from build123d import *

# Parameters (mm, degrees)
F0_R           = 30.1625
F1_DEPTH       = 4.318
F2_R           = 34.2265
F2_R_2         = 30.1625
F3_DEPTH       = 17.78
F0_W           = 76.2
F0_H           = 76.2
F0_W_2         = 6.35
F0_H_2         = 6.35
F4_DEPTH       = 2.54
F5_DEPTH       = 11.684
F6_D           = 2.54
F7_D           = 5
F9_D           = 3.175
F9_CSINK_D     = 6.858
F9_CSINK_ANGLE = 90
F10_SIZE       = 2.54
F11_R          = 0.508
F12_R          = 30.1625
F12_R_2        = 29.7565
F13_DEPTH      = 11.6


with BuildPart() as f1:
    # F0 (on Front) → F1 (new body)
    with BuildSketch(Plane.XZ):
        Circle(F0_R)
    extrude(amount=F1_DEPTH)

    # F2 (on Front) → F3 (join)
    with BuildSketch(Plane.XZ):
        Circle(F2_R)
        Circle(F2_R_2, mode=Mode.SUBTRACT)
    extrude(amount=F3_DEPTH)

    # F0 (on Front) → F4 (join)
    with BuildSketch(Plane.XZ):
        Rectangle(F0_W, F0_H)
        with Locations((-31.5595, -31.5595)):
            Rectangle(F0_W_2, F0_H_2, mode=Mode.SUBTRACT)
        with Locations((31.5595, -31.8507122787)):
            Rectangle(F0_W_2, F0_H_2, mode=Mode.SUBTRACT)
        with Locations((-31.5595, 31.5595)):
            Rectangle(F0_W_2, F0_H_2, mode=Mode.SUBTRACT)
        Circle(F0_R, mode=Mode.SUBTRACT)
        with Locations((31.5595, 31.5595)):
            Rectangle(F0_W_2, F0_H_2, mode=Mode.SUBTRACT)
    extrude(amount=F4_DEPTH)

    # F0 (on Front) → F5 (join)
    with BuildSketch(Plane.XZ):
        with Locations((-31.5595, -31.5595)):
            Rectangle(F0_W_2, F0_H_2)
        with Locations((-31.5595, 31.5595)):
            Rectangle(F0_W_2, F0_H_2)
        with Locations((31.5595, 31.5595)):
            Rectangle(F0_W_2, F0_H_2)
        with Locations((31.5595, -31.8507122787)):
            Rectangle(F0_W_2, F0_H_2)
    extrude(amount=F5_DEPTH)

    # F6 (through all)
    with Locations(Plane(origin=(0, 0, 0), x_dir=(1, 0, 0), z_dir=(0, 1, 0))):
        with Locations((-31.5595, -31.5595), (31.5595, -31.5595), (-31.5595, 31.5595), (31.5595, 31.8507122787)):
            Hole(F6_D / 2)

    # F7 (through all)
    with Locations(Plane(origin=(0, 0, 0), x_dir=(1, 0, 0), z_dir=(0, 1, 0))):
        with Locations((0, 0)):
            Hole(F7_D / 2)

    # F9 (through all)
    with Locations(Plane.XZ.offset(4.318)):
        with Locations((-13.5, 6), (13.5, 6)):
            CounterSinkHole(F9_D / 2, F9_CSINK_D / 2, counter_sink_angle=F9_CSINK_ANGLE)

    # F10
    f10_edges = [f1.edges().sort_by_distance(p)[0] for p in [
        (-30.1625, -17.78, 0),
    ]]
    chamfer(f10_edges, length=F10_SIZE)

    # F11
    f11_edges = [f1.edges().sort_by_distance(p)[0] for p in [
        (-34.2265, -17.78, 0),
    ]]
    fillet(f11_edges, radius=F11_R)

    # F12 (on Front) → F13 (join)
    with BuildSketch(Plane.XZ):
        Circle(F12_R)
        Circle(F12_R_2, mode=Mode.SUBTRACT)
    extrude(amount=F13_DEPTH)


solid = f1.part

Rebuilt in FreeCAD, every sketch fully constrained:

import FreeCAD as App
import Part
import Sketcher
from FreeCAD import Vector
Q = App.Units.Quantity


def edges_at(feature, points):
    """Names of the edges that pass closest to the given points."""
    edges = feature.Shape.Edges
    near = lambda p: min(range(len(edges)), key=lambda i: edges[i].distToShape(Part.Vertex(*p))[0])
    return sorted({f"Edge{near(p) + 1}" for p in points})


def add_polygon(sketch, points):
    """Adds a closed chain of lines whose ends are joined by coincident constraints."""
    first, n = sketch.GeometryCount, len(points)
    for a, b in zip(points, points[1:] + points[:1]):
        sketch.addGeometry(Part.LineSegment(App.Vector(*a, 0), App.Vector(*b, 0)), False)
    for i in range(n):
        sketch.addConstraint(Sketcher.Constraint("Coincident", first + i, 2, first + (i + 1) % n, 1))

doc = App.newDocument("Part")
params = doc.addObject("Spreadsheet::Sheet", "Params")
for row, (alias, value) in enumerate([
    ("sketch1_diameter", "2.375 in"),
    ("pad1_length", "0.17 in"),
    ("sketch2_diameter", "2.695 in"),
    ("sketch2_diameter2", "2.375 in"),
    ("pad2_length", "0.7 in"),
    ("sketch3_width", "3 in"),
    ("sketch3_diameter", "2.375 in"),
    ("sketch3_width2", "0.25 in"),
    ("pad3_length", "0.1 in"),
    ("sketch4_width", "0.25 in"),
    ("pad4_length", "0.46 in"),
    ("sketch5_diameter", "0.1 in"),
    ("hole_diameter", "0.1 in"),
    ("hole2_diameter", "5 mm"),
    ("sketch7_diameter", "0.125 in"),
    ("hole3_diameter", "0.125 in"),
    ("hole3_csink_diameter", "0.27 in"),
    ("chamfer_size", "0.1 in"),
    ("fillet_radius", "0.02 in"),
    ("sketch8_diameter", "2.375 in"),
    ("pad5_length", "11.6 mm"),
], start=1):
    params.set(f"A{row}", alias)
    params.set(f"B{row}", "=" + value)
    params.setAlias(f"B{row}", alias)

body = doc.addObject("PartDesign::Body", "Body")

# Sketch on XZ plane
sketch1 = body.newObject("Sketcher::SketchObject", "Sketch")
sketch1.AttachmentSupport = (doc.getObject("XZ_Plane"), [""])
sketch1.MapMode = "FlatFace"
sketch1.addGeometry(Part.Circle(Vector(0, 0, 0), Vector(0, 0, 1), 30), False)
sketch1.addConstraint([
    Sketcher.Constraint("Coincident", 0, 3, -1, 1),
    Sketcher.Constraint("Diameter", 0, Q("2.375 in")),
])
sketch1.setExpression("Constraints[1]", "Params.sketch1_diameter")
pad1 = body.newObject("PartDesign::Pad", "Pad")
pad1.Profile = sketch1
pad1.setExpression("Length", "Params.pad1_length")

# Sketch on XZ plane
sketch2 = body.newObject("Sketcher::SketchObject", "Sketch001")
sketch2.AttachmentSupport = (doc.getObject("XZ_Plane"), [""])
sketch2.MapMode = "FlatFace"
sketch2.addGeometry([
    Part.Circle(Vector(0, 0, 0), Vector(0, 0, 1), 34),
    Part.Circle(Vector(0, 0, 0), Vector(0, 0, 1), 30),
], False)
sketch2.addConstraint([
    Sketcher.Constraint("Coincident", 0, 3, -1, 1),
    Sketcher.Constraint("Coincident", 1, 3, -1, 1),
    Sketcher.Constraint("Diameter", 0, Q("2.695 in")),
    Sketcher.Constraint("Diameter", 1, Q("2.375 in")),
])
sketch2.setExpression("Constraints[2]", "Params.sketch2_diameter")
sketch2.setExpression("Constraints[3]", "Params.sketch2_diameter2")
pad2 = body.newObject("PartDesign::Pad", "Pad001")
pad2.Profile = sketch2
pad2.setExpression("Length", "Params.pad2_length")

# Sketch on XZ plane
sketch3 = body.newObject("Sketcher::SketchObject", "Sketch002")
sketch3.AttachmentSupport = (doc.getObject("XZ_Plane"), [""])
sketch3.MapMode = "FlatFace"
add_polygon(sketch3, [(-38, 38), (-38, -38), (38, -38), (38, 38)])  # lines 0-3
add_polygon(sketch3, [(-28, -35), (-35, -35), (-35, -28), (-28, -28)])  # lines 4-7
add_polygon(sketch3, [(35, -35), (28, -35), (28, -29), (35, -29)])  # lines 8-11
add_polygon(sketch3, [(-28, 28), (-35, 28), (-35, 35), (-28, 35)])  # lines 12-15
sketch3.addGeometry(Part.Circle(Vector(0, 0, 0), Vector(0, 0, 1), 30), False)  # 16
add_polygon(sketch3, [(35, 28), (28, 28), (28, 35), (35, 35)])  # lines 17-20
sketch3.addConstraint([
    Sketcher.Constraint("Vertical", 0),
    Sketcher.Constraint("Horizontal", 1),
    Sketcher.Constraint("Vertical", 2),
    Sketcher.Constraint("Horizontal", 3),
    Sketcher.Constraint("Horizontal", 4),
    Sketcher.Constraint("Vertical", 5),
    Sketcher.Constraint("Horizontal", 6),
    Sketcher.Constraint("Vertical", 7),
    Sketcher.Constraint("Horizontal", 8),
    Sketcher.Constraint("Vertical", 9),
    Sketcher.Constraint("Horizontal", 10),
    Sketcher.Constraint("Vertical", 11),
    Sketcher.Constraint("Horizontal", 12),
    Sketcher.Constraint("Vertical", 13),
    Sketcher.Constraint("Horizontal", 14),
    Sketcher.Constraint("Vertical", 15),
    Sketcher.Constraint("Horizontal", 17),
    Sketcher.Constraint("Vertical", 18),
    Sketcher.Constraint("Horizontal", 19),
    Sketcher.Constraint("Vertical", 20),
    Sketcher.Constraint("Coincident", 16, 3, -1, 1),
    Sketcher.Constraint("Symmetric", 0, 2, 2, 2, -1, 1),
    Sketcher.Constraint("Symmetric", 6, 2, 17, 2, -1, 1),
    Sketcher.Constraint("Symmetric", 4, 2, 19, 2, -1, 1),
    Sketcher.Constraint("Symmetric", 15, 2, 17, 2, -2),
    Sketcher.Constraint("Symmetric", 13, 2, 19, 2, -2),
    Sketcher.Constraint("Vertical", 9, 2, 17, 2),
    Sketcher.Constraint("Vertical", 11, 2, 19, 2),
    Sketcher.Constraint("Equal", 3, 0),
    Sketcher.Constraint("Equal", 19, 5),
    Sketcher.Constraint("Equal", 7, 9),
    Sketcher.Constraint("DistanceX", 1, 1, 1, 2, Q("3 in")),
    Sketcher.Constraint("Diameter", 16, Q("2.375 in")),
    Sketcher.Constraint("DistanceX", 4, 2, 4, 1, Q("0.25 in")),
    Sketcher.Constraint("DistanceX", 7, 2, 8, 2, Q("2.235 in")),
    Sketcher.Constraint("DistanceY", 5, 2, 12, 2, Q("2.235 in")),
    Sketcher.Constraint("DistanceY", 8, 2, -1, 1, Q("35.025712 mm")),
])
sketch3.setExpression("Constraints[51]", "Params.sketch3_width")
sketch3.setExpression("Constraints[52]", "Params.sketch3_diameter")
sketch3.setExpression("Constraints[53]", "Params.sketch3_width2")
pad3 = body.newObject("PartDesign::Pad", "Pad002")
pad3.Profile = sketch3
pad3.setExpression("Length", "Params.pad3_length")

# Sketch on XZ plane
sketch4 = body.newObject("Sketcher::SketchObject", "Sketch003")
sketch4.AttachmentSupport = (doc.getObject("XZ_Plane"), [""])
sketch4.MapMode = "FlatFace"
add_polygon(sketch4, [(-35, -28), (-35, -35), (-28, -35), (-28, -28)])  # lines 0-3
add_polygon(sketch4, [(-35, 35), (-35, 28), (-28, 28), (-28, 35)])  # lines 4-7
add_polygon(sketch4, [(28, 35), (28, 28), (35, 28), (35, 35)])  # lines 8-11
add_polygon(sketch4, [(28, -29), (28, -35), (35, -35), (35, -29)])  # lines 12-15
sketch4.addConstraint([
    Sketcher.Constraint("Vertical", 0),
    Sketcher.Constraint("Horizontal", 1),
    Sketcher.Constraint("Vertical", 2),
    Sketcher.Constraint("Horizontal", 3),
    Sketcher.Constraint("Vertical", 4),
    Sketcher.Constraint("Horizontal", 5),
    Sketcher.Constraint("Vertical", 6),
    Sketcher.Constraint("Horizontal", 7),
    Sketcher.Constraint("Vertical", 8),
    Sketcher.Constraint("Horizontal", 9),
    Sketcher.Constraint("Vertical", 10),
    Sketcher.Constraint("Horizontal", 11),
    Sketcher.Constraint("Vertical", 12),
    Sketcher.Constraint("Horizontal", 13),
    Sketcher.Constraint("Vertical", 14),
    Sketcher.Constraint("Horizontal", 15),
    Sketcher.Constraint("Symmetric", 2, 2, 8, 2, -1, 1),
    Sketcher.Constraint("Symmetric", 0, 2, 10, 2, -1, 1),
    Sketcher.Constraint("Symmetric", 5, 2, 8, 2, -2),
    Sketcher.Constraint("Symmetric", 7, 2, 10, 2, -2),
    Sketcher.Constraint("Vertical", 11, 2, 12, 2),
    Sketcher.Constraint("Vertical", 10, 2, 13, 2),
    Sketcher.Constraint("Equal", 15, 0),
    Sketcher.Constraint("Equal", 10, 12),
    Sketcher.Constraint("DistanceX", 1, 1, 1, 2, Q("0.25 in")),
    Sketcher.Constraint("DistanceY", 3, 2, 4, 2, Q("2.235 in")),
    Sketcher.Constraint("DistanceX", 5, 2, 8, 2, Q("2.235 in")),
    Sketcher.Constraint("DistanceY", 12, 2, -1, 1, Q("35.025712 mm")),
])
sketch4.setExpression("Constraints[40]", "Params.sketch4_width")
pad4 = body.newObject("PartDesign::Pad", "Pad003")
pad4.Profile = sketch4
pad4.setExpression("Length", "Params.pad4_length")

# Sketch on XZ plane
sketch5 = body.newObject("Sketcher::SketchObject", "Sketch004")
sketch5.AttachmentSupport = (doc.getObject("XZ_Plane"), [""])
sketch5.MapMode = "FlatFace"
sketch5.addGeometry([
    Part.Circle(Vector(-31.6, 31.6, 0), Vector(0, 0, 1), 1.3),
    Part.Circle(Vector(31.6, 31.6, 0), Vector(0, 0, 1), 1.3),
    Part.Circle(Vector(-31.6, -31.6, 0), Vector(0, 0, 1), 1.3),
    Part.Circle(Vector(31.6, -31.9, 0), Vector(0, 0, 1), 1.3),
], False)
sketch5.addConstraint([
    Sketcher.Constraint("Equal", 0, 1),
    Sketcher.Constraint("Equal", 1, 2),
    Sketcher.Constraint("Equal", 2, 3),
    Sketcher.Constraint("Symmetric", 1, 3, 2, 3, -1, 1),
    Sketcher.Constraint("Symmetric", 0, 3, 1, 3, -2),
    Sketcher.Constraint("Vertical", 1, 3, 3, 3),
    Sketcher.Constraint("Diameter", 0, Q("0.1 in")),
    Sketcher.Constraint("DistanceX", 0, 3, 1, 3, Q("2.485 in")),
    Sketcher.Constraint("DistanceY", 2, 3, 0, 3, Q("2.485 in")),
    Sketcher.Constraint("DistanceY", 3, 3, -1, 1, Q("31.850712 mm")),
])
sketch5.setExpression("Constraints[6]", "Params.sketch5_diameter")
doc.recompute()
hole = body.newObject("PartDesign::Hole", "Hole")
hole.Profile = sketch5
hole.ThreadType = "None"
hole.setExpression("Diameter", "Params.hole_diameter")
hole.DepthType = "ThroughAll"
hole.Reversed = True

# Sketch on XZ plane
sketch6 = body.newObject("Sketcher::SketchObject", "Sketch005")
sketch6.AttachmentSupport = (doc.getObject("XZ_Plane"), [""])
sketch6.MapMode = "FlatFace"
sketch6.addGeometry(Part.Circle(Vector(0, 0, 0), Vector(0, 0, 1), 2.5), False)
sketch6.addConstraint([
    Sketcher.Constraint("Coincident", 0, 3, -1, 1),
    Sketcher.Constraint("Diameter", 0, Q("5 mm")),
])
doc.recompute()
hole2 = body.newObject("PartDesign::Hole", "Hole001")
hole2.Profile = sketch6
hole2.ThreadType = "None"
hole2.setExpression("Diameter", "Params.hole2_diameter")
hole2.DepthType = "ThroughAll"
hole2.Reversed = True

# Sketch on XZ plane
sketch7 = body.newObject("Sketcher::SketchObject", "Sketch006")
sketch7.AttachmentSupport = (doc.getObject("XZ_Plane"), [""])
sketch7.MapMode = "FlatFace"
sketch7.AttachmentOffset = App.Placement(Vector(0, 0, 0.17 * 25.4), App.Rotation())
sketch7.addGeometry([
    Part.Circle(Vector(-13.5, 6, 0), Vector(0, 0, 1), 1.6),
    Part.Circle(Vector(13.5, 6, 0), Vector(0, 0, 1), 1.6),
], False)
sketch7.addConstraint([
    Sketcher.Constraint("Equal", 0, 1),
    Sketcher.Constraint("Symmetric", 0, 3, 1, 3, -2),
    Sketcher.Constraint("Diameter", 0, Q("0.125 in")),
    Sketcher.Constraint("DistanceX", 0, 3, -1, 1, Q("13.5 mm")),
    Sketcher.Constraint("DistanceY", -1, 1, 0, 3, Q("6 mm")),
])
sketch7.setExpression("Constraints[2]", "Params.sketch7_diameter")
doc.recompute()
hole3 = body.newObject("PartDesign::Hole", "Hole002")
hole3.Profile = sketch7
hole3.ThreadType = "None"
hole3.setExpression("Diameter", "Params.hole3_diameter")
hole3.DepthType = "ThroughAll"
hole3.HoleCutType = "Countersink"
hole3.setExpression("HoleCutDiameter", "Params.hole3_csink_diameter")
hole3.HoleCutCountersinkAngle = 90
doc.recompute()

chamfer = body.newObject("PartDesign::Chamfer", "Chamfer")
chamfer.Base = (hole3, edges_at(hole3, [(-30.163, -17.78, 0)]))
chamfer.setExpression("Size", "Params.chamfer_size")
doc.recompute()

fillet = body.newObject("PartDesign::Fillet", "Fillet")
fillet.Base = (chamfer, edges_at(chamfer, [(-34.227, -17.78, 0)]))
fillet.setExpression("Radius", "Params.fillet_radius")

# Sketch on XZ plane
sketch8 = body.newObject("Sketcher::SketchObject", "Sketch007")
sketch8.AttachmentSupport = (doc.getObject("XZ_Plane"), [""])
sketch8.MapMode = "FlatFace"
sketch8.addGeometry([
    Part.Circle(Vector(0, 0, 0), Vector(0, 0, 1), 30),
    Part.Circle(Vector(0, 0, 0), Vector(0, 0, 1), 30),
], False)
sketch8.addConstraint([
    Sketcher.Constraint("Coincident", 0, 3, -1, 1),
    Sketcher.Constraint("Coincident", 1, 3, -1, 1),
    Sketcher.Constraint("Diameter", 0, Q("2.375 in")),
    Sketcher.Constraint("Diameter", 1, Q("59.513 mm")),
])
sketch8.setExpression("Constraints[2]", "Params.sketch8_diameter")
pad5 = body.newObject("PartDesign::Pad", "Pad004")
pad5.Profile = sketch8
pad5.setExpression("Length", "Params.pad5_length")

doc.recompute()
